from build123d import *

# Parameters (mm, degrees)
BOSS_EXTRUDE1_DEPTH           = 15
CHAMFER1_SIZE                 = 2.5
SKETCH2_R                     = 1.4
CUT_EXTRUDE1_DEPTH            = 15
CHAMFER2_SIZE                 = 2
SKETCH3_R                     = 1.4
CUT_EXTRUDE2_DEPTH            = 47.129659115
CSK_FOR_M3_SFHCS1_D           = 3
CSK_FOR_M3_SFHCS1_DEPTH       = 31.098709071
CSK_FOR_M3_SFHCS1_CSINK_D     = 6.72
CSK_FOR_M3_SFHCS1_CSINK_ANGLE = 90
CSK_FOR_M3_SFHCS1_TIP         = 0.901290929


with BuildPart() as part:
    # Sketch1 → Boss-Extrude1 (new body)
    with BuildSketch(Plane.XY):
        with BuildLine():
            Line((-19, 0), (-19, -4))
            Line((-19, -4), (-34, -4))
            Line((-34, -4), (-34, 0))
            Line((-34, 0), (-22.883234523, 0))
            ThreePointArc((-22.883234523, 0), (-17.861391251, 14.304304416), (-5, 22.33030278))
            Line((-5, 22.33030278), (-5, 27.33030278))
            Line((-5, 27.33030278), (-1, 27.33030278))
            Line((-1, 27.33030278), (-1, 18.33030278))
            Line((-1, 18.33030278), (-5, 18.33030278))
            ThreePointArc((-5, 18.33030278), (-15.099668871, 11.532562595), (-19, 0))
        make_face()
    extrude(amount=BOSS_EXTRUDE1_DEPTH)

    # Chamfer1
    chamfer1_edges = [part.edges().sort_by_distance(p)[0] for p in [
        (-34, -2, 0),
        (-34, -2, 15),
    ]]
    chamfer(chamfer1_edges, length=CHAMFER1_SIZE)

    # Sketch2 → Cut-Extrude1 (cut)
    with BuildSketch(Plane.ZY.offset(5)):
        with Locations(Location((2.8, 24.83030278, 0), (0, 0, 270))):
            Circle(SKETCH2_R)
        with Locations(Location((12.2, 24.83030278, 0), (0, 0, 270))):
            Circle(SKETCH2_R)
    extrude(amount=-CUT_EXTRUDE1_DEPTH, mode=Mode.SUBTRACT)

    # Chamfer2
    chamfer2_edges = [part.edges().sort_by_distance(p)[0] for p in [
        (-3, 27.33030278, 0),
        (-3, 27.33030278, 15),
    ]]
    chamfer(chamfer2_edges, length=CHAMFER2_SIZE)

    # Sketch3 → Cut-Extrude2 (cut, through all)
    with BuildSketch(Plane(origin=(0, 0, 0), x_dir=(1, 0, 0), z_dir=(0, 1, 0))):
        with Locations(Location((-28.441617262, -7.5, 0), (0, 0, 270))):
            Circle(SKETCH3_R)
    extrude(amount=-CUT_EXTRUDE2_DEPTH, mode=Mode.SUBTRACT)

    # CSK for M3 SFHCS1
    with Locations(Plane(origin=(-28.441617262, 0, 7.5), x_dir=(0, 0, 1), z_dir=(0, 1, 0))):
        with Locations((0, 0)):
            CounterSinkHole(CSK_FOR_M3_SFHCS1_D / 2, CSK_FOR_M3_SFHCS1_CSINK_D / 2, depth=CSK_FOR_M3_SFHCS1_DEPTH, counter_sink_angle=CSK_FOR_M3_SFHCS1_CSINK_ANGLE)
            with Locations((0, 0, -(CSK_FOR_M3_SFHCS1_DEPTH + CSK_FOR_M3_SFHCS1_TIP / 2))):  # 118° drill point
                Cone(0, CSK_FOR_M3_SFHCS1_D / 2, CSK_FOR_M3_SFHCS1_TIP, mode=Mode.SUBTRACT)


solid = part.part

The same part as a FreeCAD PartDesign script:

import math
import FreeCAD as App
import Part
import Sketcher

V = App.Vector
Q = App.Units.Quantity


def edges_at(feature, points):
    """Names of the edges that pass closest to the given points."""
    edges = feature.Shape.Edges
    near = lambda p: min(range(len(edges)), key=lambda i: edges[i].distToShape(Part.Vertex(*p))[0])
    return sorted({f"Edge{near(p) + 1}" for p in points})

doc = App.newDocument("Part")
body = doc.addObject("PartDesign::Body", "Body")

# Sketch on XY plane
sketch1 = doc.addObject("Sketcher::SketchObject", "Sketch")
body.addObject(sketch1)
sketch1.AttachmentSupport = (doc.XY_Plane, [""])
sketch1.MapMode = "FlatFace"
sketch1.addGeometry(Part.LineSegment(V(-19, -4, 0), V(-19, 0, 0)), False)
sketch1.addGeometry(Part.ArcOfCircle(Part.Circle(V(0, 0, 0), V(0, 0, 1), 19), math.radians(105), math.radians(180)), False)
sketch1.addGeometry(Part.LineSegment(V(-5, 18.3, 0), V(-1, 18.3, 0)), False)
sketch1.addGeometry(Part.LineSegment(V(-1, 18.3, 0), V(-1, 27.3, 0)), False)
sketch1.addGeometry(Part.LineSegment(V(-1, 27.3, 0), V(-5, 27.3, 0)), False)
sketch1.addGeometry(Part.LineSegment(V(-5, 27.3, 0), V(-5, 22.3, 0)), False)
sketch1.addGeometry(Part.ArcOfCircle(Part.Circle(V(0, 0, 0), V(0, 0, 1), 22.9), math.radians(103), math.radians(180)), False)
sketch1.addGeometry(Part.LineSegment(V(-22.9, 0, 0), V(-34, 0, 0)), False)
sketch1.addGeometry(Part.LineSegment(V(-34, 0, 0), V(-34, -4, 0)), False)
sketch1.addGeometry(Part.LineSegment(V(-34, -4, 0), V(-19, -4, 0)), False)
sketch1.addConstraint(Sketcher.Constraint("Tangent", 0, 2, 1, 2))
sketch1.addConstraint(Sketcher.Constraint("Coincident", 1, 1, 2, 1))
sketch1.addConstraint(Sketcher.Constraint("Coincident", 2, 2, 3, 1))
sketch1.addConstraint(Sketcher.Constraint("Coincident", 3, 2, 4, 1))
sketch1.addConstraint(Sketcher.Constraint("Coincident", 4, 2, 5, 1))
sketch1.addConstraint(Sketcher.Constraint("Coincident", 5, 2, 6, 1))
sketch1.addConstraint(Sketcher.Constraint("Coincident", 6, 2, 7, 1))
sketch1.addConstraint(Sketcher.Constraint("Coincident", 7, 2, 8, 1))
sketch1.addConstraint(Sketcher.Constraint("Coincident", 8, 2, 9, 1))
sketch1.addConstraint(Sketcher.Constraint("Coincident", 9, 2, 0, 1))
sketch1.addConstraint(Sketcher.Constraint("Vertical", 0))
sketch1.addConstraint(Sketcher.Constraint("Horizontal", 2))
sketch1.addConstraint(Sketcher.Constraint("Vertical", 3))
sketch1.addConstraint(Sketcher.Constraint("Horizontal", 4))
sketch1.addConstraint(Sketcher.Constraint("Vertical", 5))
sketch1.addConstraint(Sketcher.Constraint("Horizontal", 7))
sketch1.addConstraint(Sketcher.Constraint("Vertical", 8))
sketch1.addConstraint(Sketcher.Constraint("Horizontal", 9))
sketch1.addConstraint(Sketcher.Constraint("Coincident", 1, 3, -1, 1))
sketch1.addConstraint(Sketcher.Constraint("Coincident", 6, 3, -1, 1))
sketch1.addConstraint(Sketcher.Constraint("PointOnObject", 6, 2, -1))
sketch1.addConstraint(Sketcher.Constraint("Vertical", 1, 1, 4, 2))
sketch1.addConstraint(Sketcher.Constraint("Equal", 4, 0))
sketch1.addConstraint(Sketcher.Constraint("Radius", 1, Q("19 mm")))
sketch1.addConstraint(Sketcher.Constraint("DistanceX", 2, 1, 2, 2, Q("4 mm")))
sketch1.addConstraint(Sketcher.Constraint("DistanceX", 9, 1, 9, 2, Q("15 mm")))
sketch1.addConstraint(Sketcher.Constraint("DistanceY", 3, 1, 3, 2, Q("9 mm")))
sketch1.addConstraint(Sketcher.Constraint("DistanceY", 5, 2, 5, 1, Q("5 mm")))
sketch1.addConstraint(Sketcher.Constraint("DistanceX", 1, 1, -1, 1, Q("5 mm")))
pad1 = doc.addObject("PartDesign::Pad", "Pad")
body.addObject(pad1)
pad1.Profile = sketch1
pad1.Length = 15
doc.recompute()

chamfer = doc.addObject("PartDesign::Chamfer", "Chamfer")
body.addObject(chamfer)
chamfer.Base = (pad1, edges_at(pad1, [(-34, -2, 0), (-34, -2, 15)]))
chamfer.Size = 2.5

# Sketch on YZ plane
sketch2 = doc.addObject("Sketcher::SketchObject", "Sketch001")
body.addObject(sketch2)
sketch2.AttachmentSupport = (doc.YZ_Plane, [""])
sketch2.MapMode = "FlatFace"
sketch2.AttachmentOffset = App.Placement(V(0, 0, -5), App.Rotation())
sketch2.addGeometry(Part.Circle(V(24.8, 2.8, 0), V(0, 0, 1), 1.4), False)
sketch2.addGeometry(Part.Circle(V(24.8, 12.2, 0), V(0, 0, 1), 1.4), False)
sketch2.addConstraint(Sketcher.Constraint("Equal", 0, 1))
sketch2.addConstraint(Sketcher.Constraint("Vertical", 0, 3, 1, 3))
sketch2.addConstraint(Sketcher.Constraint("Diameter", 0, Q("2.8 mm")))
sketch2.addConstraint(Sketcher.Constraint("DistanceY", -1, 1, 0, 3, Q("2.8 mm")))
sketch2.addConstraint(Sketcher.Constraint("DistanceY", -1, 1, 1, 3, Q("12.2 mm")))
sketch2.addConstraint(Sketcher.Constraint("DistanceX", -1, 1, 0, 3, Q("24.830303 mm")))
pocket1 = doc.addObject("PartDesign::Pocket", "Pocket")
body.addObject(pocket1)
pocket1.Profile = sketch2
pocket1.Length = 15
pocket1.Reversed = True
doc.recompute()

chamfer2 = doc.addObject("PartDesign::Chamfer", "Chamfer001")
body.addObject(chamfer2)
chamfer2.Base = (pocket1, edges_at(pocket1, [(-3, 27.33, 0), (-3, 27.33, 15)]))
chamfer2.Size = 2

# Sketch on XZ plane
sketch3 = doc.addObject("Sketcher::SketchObject", "Sketch002")
body.addObject(sketch3)
sketch3.AttachmentSupport = (doc.XZ_Plane, [""])
sketch3.MapMode = "FlatFace"
sketch3.addGeometry(Part.Circle(V(-28.4, 7.5, 0), V(0, 0, 1), 1.4), False)
sketch3.addConstraint(Sketcher.Constraint("Diameter", 0, Q("2.8 mm")))
sketch3.addConstraint(Sketcher.Constraint("DistanceY", -1, 1, 0, 3, Q("7.5 mm")))
sketch3.addConstraint(Sketcher.Constraint("DistanceX", 0, 3, -1, 1, Q("28.441617 mm")))
pocket2 = doc.addObject("PartDesign::Pocket", "Pocket001")
body.addObject(pocket2)
pocket2.Profile = sketch3
pocket2.Type = "ThroughAll"
pocket2.Reversed = True

# Sketch on XZ plane
sketch4 = doc.addObject("Sketcher::SketchObject", "Sketch003")
body.addObject(sketch4)
sketch4.AttachmentSupport = (doc.XZ_Plane, [""])
sketch4.MapMode = "FlatFace"
sketch4.addGeometry(Part.Circle(V(-28.4, 7.5, 0), V(0, 0, 1), 1.5), False)
sketch4.addConstraint(Sketcher.Constraint("Diameter", 0, Q("3 mm")))
sketch4.addConstraint(Sketcher.Constraint("DistanceY", -1, 1, 0, 3, Q("7.5 mm")))
sketch4.addConstraint(Sketcher.Constraint("DistanceX", 0, 3, -1, 1, Q("28.441617 mm")))
doc.recompute()
hole = doc.addObject("PartDesign::Hole", "Hole")
body.addObject(hole)
hole.Profile = sketch4
hole.ThreadType = "None"
hole.Diameter = 3
hole.DepthType = "Dimension"
hole.Depth = 31.098709
hole.DrillPoint = "Angled"
hole.DrillPointAngle = 118
hole.HoleCutType = "Countersink"
hole.HoleCutDiameter = 6.72
hole.HoleCutCountersinkAngle = 90
hole.Reversed = True

doc.recompute()
